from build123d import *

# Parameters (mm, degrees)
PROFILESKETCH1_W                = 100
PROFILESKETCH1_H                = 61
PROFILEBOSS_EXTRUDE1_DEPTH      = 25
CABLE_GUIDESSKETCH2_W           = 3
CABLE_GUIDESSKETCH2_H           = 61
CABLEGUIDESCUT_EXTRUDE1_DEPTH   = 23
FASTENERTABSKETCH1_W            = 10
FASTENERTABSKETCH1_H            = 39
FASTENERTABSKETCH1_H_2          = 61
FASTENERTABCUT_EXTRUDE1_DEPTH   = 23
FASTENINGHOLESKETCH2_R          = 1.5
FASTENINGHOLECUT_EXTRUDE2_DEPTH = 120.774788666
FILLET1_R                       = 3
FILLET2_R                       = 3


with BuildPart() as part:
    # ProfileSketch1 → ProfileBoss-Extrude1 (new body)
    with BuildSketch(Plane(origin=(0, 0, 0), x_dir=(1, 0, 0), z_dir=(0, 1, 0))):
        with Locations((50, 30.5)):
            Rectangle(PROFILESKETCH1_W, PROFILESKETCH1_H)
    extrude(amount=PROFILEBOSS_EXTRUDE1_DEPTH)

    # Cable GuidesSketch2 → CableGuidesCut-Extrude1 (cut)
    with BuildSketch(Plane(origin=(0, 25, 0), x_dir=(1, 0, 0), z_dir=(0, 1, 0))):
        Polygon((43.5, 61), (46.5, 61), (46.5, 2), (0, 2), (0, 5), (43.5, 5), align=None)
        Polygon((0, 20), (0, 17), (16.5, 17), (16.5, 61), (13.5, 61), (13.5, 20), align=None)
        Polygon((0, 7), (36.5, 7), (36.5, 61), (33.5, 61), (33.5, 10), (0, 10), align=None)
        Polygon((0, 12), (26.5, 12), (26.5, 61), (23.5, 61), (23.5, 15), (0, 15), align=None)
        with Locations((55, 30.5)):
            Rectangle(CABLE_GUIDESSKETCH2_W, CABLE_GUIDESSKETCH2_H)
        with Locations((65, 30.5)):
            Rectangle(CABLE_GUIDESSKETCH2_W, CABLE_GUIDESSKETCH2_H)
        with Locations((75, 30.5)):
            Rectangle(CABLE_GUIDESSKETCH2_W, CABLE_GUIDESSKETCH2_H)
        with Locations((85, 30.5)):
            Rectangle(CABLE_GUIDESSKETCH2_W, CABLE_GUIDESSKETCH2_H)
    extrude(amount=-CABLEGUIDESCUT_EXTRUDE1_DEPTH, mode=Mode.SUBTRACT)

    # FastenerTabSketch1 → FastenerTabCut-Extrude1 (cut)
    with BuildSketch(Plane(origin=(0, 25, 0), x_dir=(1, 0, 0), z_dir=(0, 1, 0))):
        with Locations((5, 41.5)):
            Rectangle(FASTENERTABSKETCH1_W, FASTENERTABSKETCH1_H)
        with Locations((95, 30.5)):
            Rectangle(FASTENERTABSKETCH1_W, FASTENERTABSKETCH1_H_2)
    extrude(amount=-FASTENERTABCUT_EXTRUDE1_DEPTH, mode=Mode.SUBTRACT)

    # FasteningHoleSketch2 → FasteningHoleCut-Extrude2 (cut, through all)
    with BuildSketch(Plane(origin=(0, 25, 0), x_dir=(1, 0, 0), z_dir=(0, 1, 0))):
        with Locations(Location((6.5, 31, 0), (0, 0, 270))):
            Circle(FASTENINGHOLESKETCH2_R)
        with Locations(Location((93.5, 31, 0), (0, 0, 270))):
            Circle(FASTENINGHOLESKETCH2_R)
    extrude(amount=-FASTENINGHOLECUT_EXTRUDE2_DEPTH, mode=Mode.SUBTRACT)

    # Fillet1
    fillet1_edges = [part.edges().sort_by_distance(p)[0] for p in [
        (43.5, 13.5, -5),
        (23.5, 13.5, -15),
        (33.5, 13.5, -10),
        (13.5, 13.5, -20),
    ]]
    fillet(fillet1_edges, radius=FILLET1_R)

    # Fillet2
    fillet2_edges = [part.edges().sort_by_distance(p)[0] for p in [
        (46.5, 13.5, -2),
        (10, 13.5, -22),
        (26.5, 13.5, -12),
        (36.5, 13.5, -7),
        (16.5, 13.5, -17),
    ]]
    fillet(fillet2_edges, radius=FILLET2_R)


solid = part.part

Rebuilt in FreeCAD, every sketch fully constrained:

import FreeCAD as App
import Part
import Sketcher

V = App.Vector


def edges_at(feature, points):
    """Names of the edges that pass closest to the given points."""
    edges = feature.Shape.Edges
    near = lambda p: min(range(len(edges)), key=lambda i: edges[i].distToShape(Part.Vertex(*p))[0])
    return sorted({f"Edge{near(p) + 1}" for p in points})

doc = App.newDocument("Part")
body = doc.addObject("PartDesign::Body", "Body")

# Sketch on XZ plane
sketch1 = body.newObject("Sketcher::SketchObject", "Sketch")
sketch1.AttachmentSupport = (doc.getObject("XZ_Plane"), [""])
sketch1.MapMode = "FlatFace"
sketch1.addGeometry([
    Part.LineSegment(V(0, -61, 0), V(0, 0, 0)),
    Part.LineSegment(V(0, 0, 0), V(100, 0, 0)),
    Part.LineSegment(V(100, 0, 0), V(100, -61, 0)),
    Part.LineSegment(V(100, -61, 0), V(0, -61, 0)),
], False)
sketch1.addConstraint([
    Sketcher.Constraint("Coincident", 0, 2, 1, 1),
    Sketcher.Constraint("Coincident", 1, 2, 2, 1),
    Sketcher.Constraint("Coincident", 2, 2, 3, 1),
    Sketcher.Constraint("Coincident", 3, 2, 0, 1),
    Sketcher.Constraint("Vertical", 0),
    Sketcher.Constraint("Horizontal", 1),
    Sketcher.Constraint("Vertical", 2),
    Sketcher.Constraint("Horizontal", 3),
    Sketcher.Constraint("Coincident", 0, 2, -1, 1),
    Sketcher.Constraint("DistanceX", 1, 1, 1, 2, 100.0),
    Sketcher.Constraint("DistanceY", 0, 1, 0, 2, 61.0),
])
pad1 = body.newObject("PartDesign::Pad", "Pad")
pad1.Profile = sketch1
pad1.Length = 25
pad1.Reversed = True

# Sketch on XZ plane
sketch2 = body.newObject("Sketcher::SketchObject", "Sketch001")
sketch2.AttachmentSupport = (doc.getObject("XZ_Plane"), [""])
sketch2.MapMode = "FlatFace"
sketch2.AttachmentOffset = App.Placement(V(0, 0, -25), App.Rotation())
sketch2.addGeometry([
    Part.LineSegment(V(46.5, -61, 0), V(43.5, -61, 0)),  # 0
    Part.LineSegment(V(43.5, -61, 0), V(43.5, -5, 0)),  # 1
    Part.LineSegment(V(43.5, -5, 0), V(0, -5, 0)),  # 2
    Part.LineSegment(V(0, -5, 0), V(0, -2, 0)),  # 3
    Part.LineSegment(V(0, -2, 0), V(46.5, -2, 0)),  # 4
    Part.LineSegment(V(46.5, -2, 0), V(46.5, -61, 0)),  # 5
    Part.LineSegment(V(0, -20, 0), V(0, -17, 0)),  # 6
    Part.LineSegment(V(0, -17, 0), V(16.5, -17, 0)),  # 7
    Part.LineSegment(V(16.5, -17, 0), V(16.5, -61, 0)),  # 8
    Part.LineSegment(V(16.5, -61, 0), V(13.5, -61, 0)),  # 9
    Part.LineSegment(V(13.5, -61, 0), V(13.5, -20, 0)),  # 10
    Part.LineSegment(V(13.5, -20, 0), V(0, -20, 0)),  # 11
    Part.LineSegment(V(0, -7, 0), V(36.5, -7, 0)),  # 12
    Part.LineSegment(V(36.5, -7, 0), V(36.5, -61, 0)),  # 13
    Part.LineSegment(V(36.5, -61, 0), V(33.5, -61, 0)),  # 14
    Part.LineSegment(V(33.5, -61, 0), V(33.5, -10, 0)),  # 15
    Part.LineSegment(V(33.5, -10, 0), V(0, -10, 0)),  # 16
    Part.LineSegment(V(0, -10, 0), V(0, -7, 0)),  # 17
    Part.LineSegment(V(0, -12, 0), V(26.5, -12, 0)),  # 18
    Part.LineSegment(V(26.5, -12, 0), V(26.5, -61, 0)),  # 19
    Part.LineSegment(V(26.5, -61, 0), V(23.5, -61, 0)),  # 20
    Part.LineSegment(V(23.5, -61, 0), V(23.5, -15, 0)),  # 21
    Part.LineSegment(V(23.5, -15, 0), V(0, -15, 0)),  # 22
    Part.LineSegment(V(0, -15, 0), V(0, -12, 0)),  # 23
    Part.LineSegment(V(53.5, -61, 0), V(53.5, 0, 0)),  # 24
    Part.LineSegment(V(53.5, 0, 0), V(56.5, 0, 0)),  # 25
    Part.LineSegment(V(56.5, 0, 0), V(56.5, -61, 0)),  # 26
    Part.LineSegment(V(56.5, -61, 0), V(53.5, -61, 0)),  # 27
    Part.LineSegment(V(63.5, -61, 0), V(63.5, 0, 0)),  # 28
    Part.LineSegment(V(63.5, 0, 0), V(66.5, 0, 0)),  # 29
    Part.LineSegment(V(66.5, 0, 0), V(66.5, -61, 0)),  # 30
    Part.LineSegment(V(66.5, -61, 0), V(63.5, -61, 0)),  # 31
    Part.LineSegment(V(73.5, -61, 0), V(73.5, 0, 0)),  # 32
    Part.LineSegment(V(73.5, 0, 0), V(76.5, 0, 0)),  # 33
    Part.LineSegment(V(76.5, 0, 0), V(76.5, -61, 0)),  # 34
    Part.LineSegment(V(76.5, -61, 0), V(73.5, -61, 0)),  # 35
    Part.LineSegment(V(83.5, -61, 0), V(83.5, 0, 0)),  # 36
    Part.LineSegment(V(83.5, 0, 0), V(86.5, 0, 0)),  # 37
    Part.LineSegment(V(86.5, 0, 0), V(86.5, -61, 0)),  # 38
    Part.LineSegment(V(86.5, -61, 0), V(83.5, -61, 0)),  # 39
], False)
sketch2.addConstraint([
    Sketcher.Constraint("Coincident", 0, 2, 1, 1),
    Sketcher.Constraint("Coincident", 1, 2, 2, 1),
    Sketcher.Constraint("Coincident", 2, 2, 3, 1),
    Sketcher.Constraint("Coincident", 3, 2, 4, 1),
    Sketcher.Constraint("Coincident", 4, 2, 5, 1),
    Sketcher.Constraint("Coincident", 5, 2, 0, 1),
    Sketcher.Constraint("Coincident", 6, 2, 7, 1),
    Sketcher.Constraint("Coincident", 7, 2, 8, 1),
    Sketcher.Constraint("Coincident", 8, 2, 9, 1),
    Sketcher.Constraint("Coincident", 9, 2, 10, 1),
    Sketcher.Constraint("Coincident", 10, 2, 11, 1),
    Sketcher.Constraint("Coincident", 11, 2, 6, 1),
    Sketcher.Constraint("Coincident", 12, 2, 13, 1),
    Sketcher.Constraint("Coincident", 13, 2, 14, 1),
    Sketcher.Constraint("Coincident", 14, 2, 15, 1),
    Sketcher.Constraint("Coincident", 15, 2, 16, 1),
    Sketcher.Constraint("Coincident", 16, 2, 17, 1),
    Sketcher.Constraint("Coincident", 17, 2, 12, 1),
    Sketcher.Constraint("Coincident", 18, 2, 19, 1),
    Sketcher.Constraint("Coincident", 19, 2, 20, 1),
    Sketcher.Constraint("Coincident", 20, 2, 21, 1),
    Sketcher.Constraint("Coincident", 21, 2, 22, 1),
    Sketcher.Constraint("Coincident", 22, 2, 23, 1),
    Sketcher.Constraint("Coincident", 23, 2, 18, 1),
    Sketcher.Constraint("Coincident", 24, 2, 25, 1),
    Sketcher.Constraint("Coincident", 25, 2, 26, 1),
    Sketcher.Constraint("Coincident", 26, 2, 27, 1),
    Sketcher.Constraint("Coincident", 27, 2, 24, 1),
    Sketcher.Constraint("Coincident", 28, 2, 29, 1),
    Sketcher.Constraint("Coincident", 29, 2, 30, 1),
    Sketcher.Constraint("Coincident", 30, 2, 31, 1),
    Sketcher.Constraint("Coincident", 31, 2, 28, 1),
    Sketcher.Constraint("Coincident", 32, 2, 33, 1),
    Sketcher.Constraint("Coincident", 33, 2, 34, 1),
    Sketcher.Constraint("Coincident", 34, 2, 35, 1),
    Sketcher.Constraint("Coincident", 35, 2, 32, 1),
    Sketcher.Constraint("Coincident", 36, 2, 37, 1),
    Sketcher.Constraint("Coincident", 37, 2, 38, 1),
    Sketcher.Constraint("Coincident", 38, 2, 39, 1),
    Sketcher.Constraint("Coincident", 39, 2, 36, 1),
    Sketcher.Constraint("Horizontal", 0),
    Sketcher.Constraint("Vertical", 1),
    Sketcher.Constraint("Horizontal", 2),
    Sketcher.Constraint("Vertical", 3),
    Sketcher.Constraint("Horizontal", 4),
    Sketcher.Constraint("Vertical", 5),
    Sketcher.Constraint("Vertical", 6),
    Sketcher.Constraint("Horizontal", 7),
    Sketcher.Constraint("Vertical", 8),
    Sketcher.Constraint("Horizontal", 9),
    Sketcher.Constraint("Vertical", 10),
    Sketcher.Constraint("Horizontal", 11),
    Sketcher.Constraint("Horizontal", 12),
    Sketcher.Constraint("Vertical", 13),
    Sketcher.Constraint("Horizontal", 14),
    Sketcher.Constraint("Vertical", 15),
    Sketcher.Constraint("Horizontal", 16),
    Sketcher.Constraint("Vertical", 17),
    Sketcher.Constraint("Horizontal", 18),
    Sketcher.Constraint("Vertical", 19),
    Sketcher.Constraint("Horizontal", 20),
    Sketcher.Constraint("Vertical", 21),
    Sketcher.Constraint("Horizontal", 22),
    Sketcher.Constraint("Vertical", 23),
    Sketcher.Constraint("Vertical", 24),
    Sketcher.Constraint("Horizontal", 25),
    Sketcher.Constraint("Vertical", 26),
    Sketcher.Constraint("Horizontal", 27),
    Sketcher.Constraint("Vertical", 28),
    Sketcher.Constraint("Horizontal", 29),
    Sketcher.Constraint("Vertical", 30),
    Sketcher.Constraint("Horizontal", 31),
    Sketcher.Constraint("Vertical", 32),
    Sketcher.Constraint("Horizontal", 33),
    Sketcher.Constraint("Vertical", 34),
    Sketcher.Constraint("Horizontal", 35),
    Sketcher.Constraint("Vertical", 36),
    Sketcher.Constraint("Horizontal", 37),
    Sketcher.Constraint("Vertical", 38),
    Sketcher.Constraint("Horizontal", 39),
    Sketcher.Constraint("PointOnObject", 2, 2, -2),
    Sketcher.Constraint("PointOnObject", 6, 2, -2),
    Sketcher.Constraint("PointOnObject", 16, 2, -2),
    Sketcher.Constraint("PointOnObject", 22, 2, -2),
    Sketcher.Constraint("PointOnObject", 24, 2, -1),
    Sketcher.Constraint("PointOnObject", 28, 2, -1),
    Sketcher.Constraint("PointOnObject", 32, 2, -1),
    Sketcher.Constraint("PointOnObject", 36, 2, -1),
    Sketcher.Constraint("Horizontal", 5, 2, 8, 2),
    Sketcher.Constraint("Horizontal", 9, 2, 13, 2),
    Sketcher.Constraint("Horizontal", 14, 2, 19, 2),
    Sketcher.Constraint("Horizontal", 20, 2, 26, 2),
    Sketcher.Constraint("Horizontal", 27, 2, 30, 2),
    Sketcher.Constraint("Horizontal", 31, 2, 34, 2),
    Sketcher.Constraint("Horizontal", 35, 2, 38, 2),
    Sketcher.Constraint("Equal", 0, 9),
    Sketcher.Constraint("Equal", 9, 14),
    Sketcher.Constraint("Equal", 14, 20),
    Sketcher.Constraint("Equal", 20, 25),
    Sketcher.Constraint("Equal", 27, 29),
    Sketcher.Constraint("Equal", 31, 33),
    Sketcher.Constraint("Equal", 35, 37),
    Sketcher.Constraint("Equal", 39, 3),
    Sketcher.Constraint("Equal", 3, 6),
    Sketcher.Constraint("Equal", 6, 17),
    Sketcher.Constraint("Equal", 17, 23),
    Sketcher.Constraint("DistanceX", 0, 2, 0, 1, 3.0),
    Sketcher.Constraint("DistanceY", 1, 1, 1, 2, 56.0),
    Sketcher.Constraint("DistanceY", 8, 2, 8, 1, 44.0),
    Sketcher.Constraint("DistanceY", 13, 2, 13, 1, 54.0),
    Sketcher.Constraint("DistanceY", 19, 2, 19, 1, 49.0),
    Sketcher.Constraint("DistanceY", 24, 1, 24, 2, 61.0),
    Sketcher.Constraint("DistanceX", 2, 2, 2, 1, 43.5),
    Sketcher.Constraint("DistanceX", 7, 1, 7, 2, 16.5),
    Sketcher.Constraint("DistanceX", 12, 1, 12, 2, 36.5),
    Sketcher.Constraint("DistanceX", 18, 1, 18, 2, 26.5),
    Sketcher.Constraint("DistanceX", 4, 2, 24, 2, 7.0),
    Sketcher.Constraint("DistanceX", 25, 2, 28, 2, 7.0),
    Sketcher.Constraint("DistanceX", 29, 2, 32, 2, 7.0),
    Sketcher.Constraint("DistanceX", 33, 2, 36, 2, 7.0),
])
pocket1 = body.newObject("PartDesign::Pocket", "Pocket")
pocket1.Profile = sketch2
pocket1.Length = 23
pocket1.Reversed = True

# Sketch on XZ plane
sketch3 = body.newObject("Sketcher::SketchObject", "Sketch002")
sketch3.AttachmentSupport = (doc.getObject("XZ_Plane"), [""])
sketch3.MapMode = "FlatFace"
sketch3.AttachmentOffset = App.Placement(V(0, 0, -25), App.Rotation())
sketch3.addGeometry([
    Part.LineSegment(V(0, -61, 0), V(0, -22, 0)),  # 0
    Part.LineSegment(V(0, -22, 0), V(10, -22, 0)),  # 1
    Part.LineSegment(V(10, -22, 0), V(10, -61, 0)),  # 2
    Part.LineSegment(V(10, -61, 0), V(0, -61, 0)),  # 3
    Part.LineSegment(V(90, -61, 0), V(90, 0, 0)),  # 4
    Part.LineSegment(V(90, 0, 0), V(100, 0, 0)),  # 5
    Part.LineSegment(V(100, 0, 0), V(100, -61, 0)),  # 6
    Part.LineSegment(V(100, -61, 0), V(90, -61, 0)),  # 7
], False)
sketch3.addConstraint([
    Sketcher.Constraint("Coincident", 0, 2, 1, 1),
    Sketcher.Constraint("Coincident", 1, 2, 2, 1),
    Sketcher.Constraint("Coincident", 2, 2, 3, 1),
    Sketcher.Constraint("Coincident", 3, 2, 0, 1),
    Sketcher.Constraint("Coincident", 4, 2, 5, 1),
    Sketcher.Constraint("Coincident", 5, 2, 6, 1),
    Sketcher.Constraint("Coincident", 6, 2, 7, 1),
    Sketcher.Constraint("Coincident", 7, 2, 4, 1),
    Sketcher.Constraint("Vertical", 0),
    Sketcher.Constraint("Horizontal", 1),
    Sketcher.Constraint("Vertical", 2),
    Sketcher.Constraint("Horizontal", 3),
    Sketcher.Constraint("Vertical", 4),
    Sketcher.Constraint("Horizontal", 5),
    Sketcher.Constraint("Vertical", 6),
    Sketcher.Constraint("Horizontal", 7),
    Sketcher.Constraint("PointOnObject", 0, 2, -2),
    Sketcher.Constraint("PointOnObject", 4, 2, -1),
    Sketcher.Constraint("Horizontal", 3, 2, 6, 2),
    Sketcher.Constraint("Equal", 3, 5),
    Sketcher.Constraint("DistanceX", 1, 1, 1, 2, 10.0),
    Sketcher.Constraint("DistanceY", 0, 1, 0, 2, 39.0),
    Sketcher.Constraint("DistanceY", 4, 1, 4, 2, 61.0),
    Sketcher.Constraint("DistanceX", -1, 1, 4, 2, 90.0),
])
pocket2 = body.newObject("PartDesign::Pocket", "Pocket001")
pocket2.Profile = sketch3
pocket2.Length = 23
pocket2.Reversed = True

# Sketch on XZ plane
sketch4 = body.newObject("Sketcher::SketchObject", "Sketch003")
sketch4.AttachmentSupport = (doc.getObject("XZ_Plane"), [""])
sketch4.MapMode = "FlatFace"
sketch4.AttachmentOffset = App.Placement(V(0, 0, -25), App.Rotation())
sketch4.addGeometry([
    Part.Circle(V(6.5, -31, 0), V(0, 0, 1), 1.5),
    Part.Circle(V(93.5, -31, 0), V(0, 0, 1), 1.5),
], False)
sketch4.addConstraint([
    Sketcher.Constraint("Equal", 0, 1),
    Sketcher.Constraint("Horizontal", 0, 3, 1, 3),
    Sketcher.Constraint("Diameter", 0, 3.0),
    Sketcher.Constraint("DistanceY", 0, 3, -1, 1, 31.0),
    Sketcher.Constraint("DistanceX", 0, 3, 1, 3, 87.0),
    Sketcher.Constraint("DistanceX", -1, 1, 0, 3, 6.5),
])
pocket3 = body.newObject("PartDesign::Pocket", "Pocket002")
pocket3.Profile = sketch4
pocket3.Type = "ThroughAll"
pocket3.Reversed = True
doc.recompute()

fillet = body.newObject("PartDesign::Fillet", "Fillet")
fillet.Base = (pocket3, edges_at(pocket3, [
    (43.5, 13.5, -5),
    (23.5, 13.5, -15),
    (33.5, 13.5, -10),
    (13.5, 13.5, -20),
]))
fillet.Radius = 3
doc.recompute()

fillet2 = body.newObject("PartDesign::Fillet", "Fillet001")
fillet2.Base = (fillet, edges_at(fillet, [
    (46.5, 13.5, -2),
    (10, 13.5, -22),
    (26.5, 13.5, -12),
    (36.5, 13.5, -7),
    (16.5, 13.5, -17),
]))
fillet2.Radius = 3

doc.recompute()
